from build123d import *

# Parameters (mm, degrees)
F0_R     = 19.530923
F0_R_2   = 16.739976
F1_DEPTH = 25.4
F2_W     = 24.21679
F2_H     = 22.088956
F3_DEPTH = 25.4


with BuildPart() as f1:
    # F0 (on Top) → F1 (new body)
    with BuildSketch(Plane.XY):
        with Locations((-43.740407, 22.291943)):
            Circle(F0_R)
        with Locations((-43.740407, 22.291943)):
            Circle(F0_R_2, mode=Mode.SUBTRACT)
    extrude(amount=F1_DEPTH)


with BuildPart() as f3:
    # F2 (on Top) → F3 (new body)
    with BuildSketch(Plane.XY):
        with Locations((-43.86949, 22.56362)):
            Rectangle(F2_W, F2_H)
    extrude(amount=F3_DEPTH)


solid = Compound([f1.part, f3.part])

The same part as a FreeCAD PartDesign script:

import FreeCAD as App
import Part
import Sketcher

V = App.Vector
Q = App.Units.Quantity

doc = App.newDocument("Part")
params = doc.addObject("Spreadsheet::Sheet", "Params")
for row, (alias, value) in enumerate([
    ("pad1_length", "1 in"),
    ("pad2_length", "1 in"),
], start=1):
    params.set(f"A{row}", alias)
    params.set(f"B{row}", "=" + value)
    params.setAlias(f"B{row}", alias)

body = doc.addObject("PartDesign::Body", "Body")

# Sketch on XY plane
sketch1 = body.newObject("Sketcher::SketchObject", "Sketch")
sketch1.AttachmentSupport = (doc.getObject("XY_Plane"), [""])
sketch1.MapMode = "FlatFace"
sketch1.addGeometry(Part.Circle(V(-44, 22, 0), V(0, 0, 1), 20), False)
sketch1.addGeometry(Part.Circle(V(-44, 22, 0), V(0, 0, 1), 17), False)
sketch1.addConstraint(Sketcher.Constraint("Coincident", 1, 3, 0, 3))
sketch1.addConstraint(Sketcher.Constraint("Diameter", 1, Q("33.479952 mm")))
sketch1.addConstraint(Sketcher.Constraint("Diameter", 0, Q("39.061846 mm")))
sketch1.addConstraint(Sketcher.Constraint("DistanceX", 0, 3, -1, 1, Q("43.740407 mm")))
sketch1.addConstraint(Sketcher.Constraint("DistanceY", -1, 1, 0, 3, Q("22.291943 mm")))
pad1 = body.newObject("PartDesign::Pad", "Pad")
pad1.Profile = sketch1
pad1.setExpression("Length", "Params.pad1_length")
body2 = doc.addObject("PartDesign::Body", "Body001")

# Sketch on XY plane
sketch2 = body2.newObject("Sketcher::SketchObject", "Sketch001")
sketch2.AttachmentSupport = (doc.getObject("XY_Plane001"), [""])
sketch2.MapMode = "FlatFace"
sketch2.addGeometry(Part.LineSegment(V(-56, 34, 0), V(-56, 12, 0)), False)
sketch2.addGeometry(Part.LineSegment(V(-56, 12, 0), V(-32, 12, 0)), False)
sketch2.addGeometry(Part.LineSegment(V(-32, 12, 0), V(-32, 34, 0)), False)
sketch2.addGeometry(Part.LineSegment(V(-32, 34, 0), V(-56, 34, 0)), False)
sketch2.addConstraint(Sketcher.Constraint("Coincident", 0, 2, 1, 1))
sketch2.addConstraint(Sketcher.Constraint("Coincident", 1, 2, 2, 1))
sketch2.addConstraint(Sketcher.Constraint("Coincident", 2, 2, 3, 1))
sketch2.addConstraint(Sketcher.Constraint("Coincident", 3, 2, 0, 1))
sketch2.addConstraint(Sketcher.Constraint("Vertical", 0))
sketch2.addConstraint(Sketcher.Constraint("Horizontal", 1))
sketch2.addConstraint(Sketcher.Constraint("Vertical", 2))
sketch2.addConstraint(Sketcher.Constraint("Horizontal", 3))
sketch2.addConstraint(Sketcher.Constraint("DistanceX", 1, 1, 1, 2, Q("24.21679 mm")))
sketch2.addConstraint(Sketcher.Constraint("DistanceY", 0, 2, 0, 1, Q("22.088956 mm")))
sketch2.addConstraint(Sketcher.Constraint("DistanceX", 0, 2, -1, 1, Q("55.977885 mm")))
sketch2.addConstraint(Sketcher.Constraint("DistanceY", -1, 1, 0, 2, Q("11.519142 mm")))
pad2 = body2.newObject("PartDesign::Pad", "Pad001")
pad2.Profile = sketch2
pad2.setExpression("Length", "Params.pad2_length")

doc.recompute()
